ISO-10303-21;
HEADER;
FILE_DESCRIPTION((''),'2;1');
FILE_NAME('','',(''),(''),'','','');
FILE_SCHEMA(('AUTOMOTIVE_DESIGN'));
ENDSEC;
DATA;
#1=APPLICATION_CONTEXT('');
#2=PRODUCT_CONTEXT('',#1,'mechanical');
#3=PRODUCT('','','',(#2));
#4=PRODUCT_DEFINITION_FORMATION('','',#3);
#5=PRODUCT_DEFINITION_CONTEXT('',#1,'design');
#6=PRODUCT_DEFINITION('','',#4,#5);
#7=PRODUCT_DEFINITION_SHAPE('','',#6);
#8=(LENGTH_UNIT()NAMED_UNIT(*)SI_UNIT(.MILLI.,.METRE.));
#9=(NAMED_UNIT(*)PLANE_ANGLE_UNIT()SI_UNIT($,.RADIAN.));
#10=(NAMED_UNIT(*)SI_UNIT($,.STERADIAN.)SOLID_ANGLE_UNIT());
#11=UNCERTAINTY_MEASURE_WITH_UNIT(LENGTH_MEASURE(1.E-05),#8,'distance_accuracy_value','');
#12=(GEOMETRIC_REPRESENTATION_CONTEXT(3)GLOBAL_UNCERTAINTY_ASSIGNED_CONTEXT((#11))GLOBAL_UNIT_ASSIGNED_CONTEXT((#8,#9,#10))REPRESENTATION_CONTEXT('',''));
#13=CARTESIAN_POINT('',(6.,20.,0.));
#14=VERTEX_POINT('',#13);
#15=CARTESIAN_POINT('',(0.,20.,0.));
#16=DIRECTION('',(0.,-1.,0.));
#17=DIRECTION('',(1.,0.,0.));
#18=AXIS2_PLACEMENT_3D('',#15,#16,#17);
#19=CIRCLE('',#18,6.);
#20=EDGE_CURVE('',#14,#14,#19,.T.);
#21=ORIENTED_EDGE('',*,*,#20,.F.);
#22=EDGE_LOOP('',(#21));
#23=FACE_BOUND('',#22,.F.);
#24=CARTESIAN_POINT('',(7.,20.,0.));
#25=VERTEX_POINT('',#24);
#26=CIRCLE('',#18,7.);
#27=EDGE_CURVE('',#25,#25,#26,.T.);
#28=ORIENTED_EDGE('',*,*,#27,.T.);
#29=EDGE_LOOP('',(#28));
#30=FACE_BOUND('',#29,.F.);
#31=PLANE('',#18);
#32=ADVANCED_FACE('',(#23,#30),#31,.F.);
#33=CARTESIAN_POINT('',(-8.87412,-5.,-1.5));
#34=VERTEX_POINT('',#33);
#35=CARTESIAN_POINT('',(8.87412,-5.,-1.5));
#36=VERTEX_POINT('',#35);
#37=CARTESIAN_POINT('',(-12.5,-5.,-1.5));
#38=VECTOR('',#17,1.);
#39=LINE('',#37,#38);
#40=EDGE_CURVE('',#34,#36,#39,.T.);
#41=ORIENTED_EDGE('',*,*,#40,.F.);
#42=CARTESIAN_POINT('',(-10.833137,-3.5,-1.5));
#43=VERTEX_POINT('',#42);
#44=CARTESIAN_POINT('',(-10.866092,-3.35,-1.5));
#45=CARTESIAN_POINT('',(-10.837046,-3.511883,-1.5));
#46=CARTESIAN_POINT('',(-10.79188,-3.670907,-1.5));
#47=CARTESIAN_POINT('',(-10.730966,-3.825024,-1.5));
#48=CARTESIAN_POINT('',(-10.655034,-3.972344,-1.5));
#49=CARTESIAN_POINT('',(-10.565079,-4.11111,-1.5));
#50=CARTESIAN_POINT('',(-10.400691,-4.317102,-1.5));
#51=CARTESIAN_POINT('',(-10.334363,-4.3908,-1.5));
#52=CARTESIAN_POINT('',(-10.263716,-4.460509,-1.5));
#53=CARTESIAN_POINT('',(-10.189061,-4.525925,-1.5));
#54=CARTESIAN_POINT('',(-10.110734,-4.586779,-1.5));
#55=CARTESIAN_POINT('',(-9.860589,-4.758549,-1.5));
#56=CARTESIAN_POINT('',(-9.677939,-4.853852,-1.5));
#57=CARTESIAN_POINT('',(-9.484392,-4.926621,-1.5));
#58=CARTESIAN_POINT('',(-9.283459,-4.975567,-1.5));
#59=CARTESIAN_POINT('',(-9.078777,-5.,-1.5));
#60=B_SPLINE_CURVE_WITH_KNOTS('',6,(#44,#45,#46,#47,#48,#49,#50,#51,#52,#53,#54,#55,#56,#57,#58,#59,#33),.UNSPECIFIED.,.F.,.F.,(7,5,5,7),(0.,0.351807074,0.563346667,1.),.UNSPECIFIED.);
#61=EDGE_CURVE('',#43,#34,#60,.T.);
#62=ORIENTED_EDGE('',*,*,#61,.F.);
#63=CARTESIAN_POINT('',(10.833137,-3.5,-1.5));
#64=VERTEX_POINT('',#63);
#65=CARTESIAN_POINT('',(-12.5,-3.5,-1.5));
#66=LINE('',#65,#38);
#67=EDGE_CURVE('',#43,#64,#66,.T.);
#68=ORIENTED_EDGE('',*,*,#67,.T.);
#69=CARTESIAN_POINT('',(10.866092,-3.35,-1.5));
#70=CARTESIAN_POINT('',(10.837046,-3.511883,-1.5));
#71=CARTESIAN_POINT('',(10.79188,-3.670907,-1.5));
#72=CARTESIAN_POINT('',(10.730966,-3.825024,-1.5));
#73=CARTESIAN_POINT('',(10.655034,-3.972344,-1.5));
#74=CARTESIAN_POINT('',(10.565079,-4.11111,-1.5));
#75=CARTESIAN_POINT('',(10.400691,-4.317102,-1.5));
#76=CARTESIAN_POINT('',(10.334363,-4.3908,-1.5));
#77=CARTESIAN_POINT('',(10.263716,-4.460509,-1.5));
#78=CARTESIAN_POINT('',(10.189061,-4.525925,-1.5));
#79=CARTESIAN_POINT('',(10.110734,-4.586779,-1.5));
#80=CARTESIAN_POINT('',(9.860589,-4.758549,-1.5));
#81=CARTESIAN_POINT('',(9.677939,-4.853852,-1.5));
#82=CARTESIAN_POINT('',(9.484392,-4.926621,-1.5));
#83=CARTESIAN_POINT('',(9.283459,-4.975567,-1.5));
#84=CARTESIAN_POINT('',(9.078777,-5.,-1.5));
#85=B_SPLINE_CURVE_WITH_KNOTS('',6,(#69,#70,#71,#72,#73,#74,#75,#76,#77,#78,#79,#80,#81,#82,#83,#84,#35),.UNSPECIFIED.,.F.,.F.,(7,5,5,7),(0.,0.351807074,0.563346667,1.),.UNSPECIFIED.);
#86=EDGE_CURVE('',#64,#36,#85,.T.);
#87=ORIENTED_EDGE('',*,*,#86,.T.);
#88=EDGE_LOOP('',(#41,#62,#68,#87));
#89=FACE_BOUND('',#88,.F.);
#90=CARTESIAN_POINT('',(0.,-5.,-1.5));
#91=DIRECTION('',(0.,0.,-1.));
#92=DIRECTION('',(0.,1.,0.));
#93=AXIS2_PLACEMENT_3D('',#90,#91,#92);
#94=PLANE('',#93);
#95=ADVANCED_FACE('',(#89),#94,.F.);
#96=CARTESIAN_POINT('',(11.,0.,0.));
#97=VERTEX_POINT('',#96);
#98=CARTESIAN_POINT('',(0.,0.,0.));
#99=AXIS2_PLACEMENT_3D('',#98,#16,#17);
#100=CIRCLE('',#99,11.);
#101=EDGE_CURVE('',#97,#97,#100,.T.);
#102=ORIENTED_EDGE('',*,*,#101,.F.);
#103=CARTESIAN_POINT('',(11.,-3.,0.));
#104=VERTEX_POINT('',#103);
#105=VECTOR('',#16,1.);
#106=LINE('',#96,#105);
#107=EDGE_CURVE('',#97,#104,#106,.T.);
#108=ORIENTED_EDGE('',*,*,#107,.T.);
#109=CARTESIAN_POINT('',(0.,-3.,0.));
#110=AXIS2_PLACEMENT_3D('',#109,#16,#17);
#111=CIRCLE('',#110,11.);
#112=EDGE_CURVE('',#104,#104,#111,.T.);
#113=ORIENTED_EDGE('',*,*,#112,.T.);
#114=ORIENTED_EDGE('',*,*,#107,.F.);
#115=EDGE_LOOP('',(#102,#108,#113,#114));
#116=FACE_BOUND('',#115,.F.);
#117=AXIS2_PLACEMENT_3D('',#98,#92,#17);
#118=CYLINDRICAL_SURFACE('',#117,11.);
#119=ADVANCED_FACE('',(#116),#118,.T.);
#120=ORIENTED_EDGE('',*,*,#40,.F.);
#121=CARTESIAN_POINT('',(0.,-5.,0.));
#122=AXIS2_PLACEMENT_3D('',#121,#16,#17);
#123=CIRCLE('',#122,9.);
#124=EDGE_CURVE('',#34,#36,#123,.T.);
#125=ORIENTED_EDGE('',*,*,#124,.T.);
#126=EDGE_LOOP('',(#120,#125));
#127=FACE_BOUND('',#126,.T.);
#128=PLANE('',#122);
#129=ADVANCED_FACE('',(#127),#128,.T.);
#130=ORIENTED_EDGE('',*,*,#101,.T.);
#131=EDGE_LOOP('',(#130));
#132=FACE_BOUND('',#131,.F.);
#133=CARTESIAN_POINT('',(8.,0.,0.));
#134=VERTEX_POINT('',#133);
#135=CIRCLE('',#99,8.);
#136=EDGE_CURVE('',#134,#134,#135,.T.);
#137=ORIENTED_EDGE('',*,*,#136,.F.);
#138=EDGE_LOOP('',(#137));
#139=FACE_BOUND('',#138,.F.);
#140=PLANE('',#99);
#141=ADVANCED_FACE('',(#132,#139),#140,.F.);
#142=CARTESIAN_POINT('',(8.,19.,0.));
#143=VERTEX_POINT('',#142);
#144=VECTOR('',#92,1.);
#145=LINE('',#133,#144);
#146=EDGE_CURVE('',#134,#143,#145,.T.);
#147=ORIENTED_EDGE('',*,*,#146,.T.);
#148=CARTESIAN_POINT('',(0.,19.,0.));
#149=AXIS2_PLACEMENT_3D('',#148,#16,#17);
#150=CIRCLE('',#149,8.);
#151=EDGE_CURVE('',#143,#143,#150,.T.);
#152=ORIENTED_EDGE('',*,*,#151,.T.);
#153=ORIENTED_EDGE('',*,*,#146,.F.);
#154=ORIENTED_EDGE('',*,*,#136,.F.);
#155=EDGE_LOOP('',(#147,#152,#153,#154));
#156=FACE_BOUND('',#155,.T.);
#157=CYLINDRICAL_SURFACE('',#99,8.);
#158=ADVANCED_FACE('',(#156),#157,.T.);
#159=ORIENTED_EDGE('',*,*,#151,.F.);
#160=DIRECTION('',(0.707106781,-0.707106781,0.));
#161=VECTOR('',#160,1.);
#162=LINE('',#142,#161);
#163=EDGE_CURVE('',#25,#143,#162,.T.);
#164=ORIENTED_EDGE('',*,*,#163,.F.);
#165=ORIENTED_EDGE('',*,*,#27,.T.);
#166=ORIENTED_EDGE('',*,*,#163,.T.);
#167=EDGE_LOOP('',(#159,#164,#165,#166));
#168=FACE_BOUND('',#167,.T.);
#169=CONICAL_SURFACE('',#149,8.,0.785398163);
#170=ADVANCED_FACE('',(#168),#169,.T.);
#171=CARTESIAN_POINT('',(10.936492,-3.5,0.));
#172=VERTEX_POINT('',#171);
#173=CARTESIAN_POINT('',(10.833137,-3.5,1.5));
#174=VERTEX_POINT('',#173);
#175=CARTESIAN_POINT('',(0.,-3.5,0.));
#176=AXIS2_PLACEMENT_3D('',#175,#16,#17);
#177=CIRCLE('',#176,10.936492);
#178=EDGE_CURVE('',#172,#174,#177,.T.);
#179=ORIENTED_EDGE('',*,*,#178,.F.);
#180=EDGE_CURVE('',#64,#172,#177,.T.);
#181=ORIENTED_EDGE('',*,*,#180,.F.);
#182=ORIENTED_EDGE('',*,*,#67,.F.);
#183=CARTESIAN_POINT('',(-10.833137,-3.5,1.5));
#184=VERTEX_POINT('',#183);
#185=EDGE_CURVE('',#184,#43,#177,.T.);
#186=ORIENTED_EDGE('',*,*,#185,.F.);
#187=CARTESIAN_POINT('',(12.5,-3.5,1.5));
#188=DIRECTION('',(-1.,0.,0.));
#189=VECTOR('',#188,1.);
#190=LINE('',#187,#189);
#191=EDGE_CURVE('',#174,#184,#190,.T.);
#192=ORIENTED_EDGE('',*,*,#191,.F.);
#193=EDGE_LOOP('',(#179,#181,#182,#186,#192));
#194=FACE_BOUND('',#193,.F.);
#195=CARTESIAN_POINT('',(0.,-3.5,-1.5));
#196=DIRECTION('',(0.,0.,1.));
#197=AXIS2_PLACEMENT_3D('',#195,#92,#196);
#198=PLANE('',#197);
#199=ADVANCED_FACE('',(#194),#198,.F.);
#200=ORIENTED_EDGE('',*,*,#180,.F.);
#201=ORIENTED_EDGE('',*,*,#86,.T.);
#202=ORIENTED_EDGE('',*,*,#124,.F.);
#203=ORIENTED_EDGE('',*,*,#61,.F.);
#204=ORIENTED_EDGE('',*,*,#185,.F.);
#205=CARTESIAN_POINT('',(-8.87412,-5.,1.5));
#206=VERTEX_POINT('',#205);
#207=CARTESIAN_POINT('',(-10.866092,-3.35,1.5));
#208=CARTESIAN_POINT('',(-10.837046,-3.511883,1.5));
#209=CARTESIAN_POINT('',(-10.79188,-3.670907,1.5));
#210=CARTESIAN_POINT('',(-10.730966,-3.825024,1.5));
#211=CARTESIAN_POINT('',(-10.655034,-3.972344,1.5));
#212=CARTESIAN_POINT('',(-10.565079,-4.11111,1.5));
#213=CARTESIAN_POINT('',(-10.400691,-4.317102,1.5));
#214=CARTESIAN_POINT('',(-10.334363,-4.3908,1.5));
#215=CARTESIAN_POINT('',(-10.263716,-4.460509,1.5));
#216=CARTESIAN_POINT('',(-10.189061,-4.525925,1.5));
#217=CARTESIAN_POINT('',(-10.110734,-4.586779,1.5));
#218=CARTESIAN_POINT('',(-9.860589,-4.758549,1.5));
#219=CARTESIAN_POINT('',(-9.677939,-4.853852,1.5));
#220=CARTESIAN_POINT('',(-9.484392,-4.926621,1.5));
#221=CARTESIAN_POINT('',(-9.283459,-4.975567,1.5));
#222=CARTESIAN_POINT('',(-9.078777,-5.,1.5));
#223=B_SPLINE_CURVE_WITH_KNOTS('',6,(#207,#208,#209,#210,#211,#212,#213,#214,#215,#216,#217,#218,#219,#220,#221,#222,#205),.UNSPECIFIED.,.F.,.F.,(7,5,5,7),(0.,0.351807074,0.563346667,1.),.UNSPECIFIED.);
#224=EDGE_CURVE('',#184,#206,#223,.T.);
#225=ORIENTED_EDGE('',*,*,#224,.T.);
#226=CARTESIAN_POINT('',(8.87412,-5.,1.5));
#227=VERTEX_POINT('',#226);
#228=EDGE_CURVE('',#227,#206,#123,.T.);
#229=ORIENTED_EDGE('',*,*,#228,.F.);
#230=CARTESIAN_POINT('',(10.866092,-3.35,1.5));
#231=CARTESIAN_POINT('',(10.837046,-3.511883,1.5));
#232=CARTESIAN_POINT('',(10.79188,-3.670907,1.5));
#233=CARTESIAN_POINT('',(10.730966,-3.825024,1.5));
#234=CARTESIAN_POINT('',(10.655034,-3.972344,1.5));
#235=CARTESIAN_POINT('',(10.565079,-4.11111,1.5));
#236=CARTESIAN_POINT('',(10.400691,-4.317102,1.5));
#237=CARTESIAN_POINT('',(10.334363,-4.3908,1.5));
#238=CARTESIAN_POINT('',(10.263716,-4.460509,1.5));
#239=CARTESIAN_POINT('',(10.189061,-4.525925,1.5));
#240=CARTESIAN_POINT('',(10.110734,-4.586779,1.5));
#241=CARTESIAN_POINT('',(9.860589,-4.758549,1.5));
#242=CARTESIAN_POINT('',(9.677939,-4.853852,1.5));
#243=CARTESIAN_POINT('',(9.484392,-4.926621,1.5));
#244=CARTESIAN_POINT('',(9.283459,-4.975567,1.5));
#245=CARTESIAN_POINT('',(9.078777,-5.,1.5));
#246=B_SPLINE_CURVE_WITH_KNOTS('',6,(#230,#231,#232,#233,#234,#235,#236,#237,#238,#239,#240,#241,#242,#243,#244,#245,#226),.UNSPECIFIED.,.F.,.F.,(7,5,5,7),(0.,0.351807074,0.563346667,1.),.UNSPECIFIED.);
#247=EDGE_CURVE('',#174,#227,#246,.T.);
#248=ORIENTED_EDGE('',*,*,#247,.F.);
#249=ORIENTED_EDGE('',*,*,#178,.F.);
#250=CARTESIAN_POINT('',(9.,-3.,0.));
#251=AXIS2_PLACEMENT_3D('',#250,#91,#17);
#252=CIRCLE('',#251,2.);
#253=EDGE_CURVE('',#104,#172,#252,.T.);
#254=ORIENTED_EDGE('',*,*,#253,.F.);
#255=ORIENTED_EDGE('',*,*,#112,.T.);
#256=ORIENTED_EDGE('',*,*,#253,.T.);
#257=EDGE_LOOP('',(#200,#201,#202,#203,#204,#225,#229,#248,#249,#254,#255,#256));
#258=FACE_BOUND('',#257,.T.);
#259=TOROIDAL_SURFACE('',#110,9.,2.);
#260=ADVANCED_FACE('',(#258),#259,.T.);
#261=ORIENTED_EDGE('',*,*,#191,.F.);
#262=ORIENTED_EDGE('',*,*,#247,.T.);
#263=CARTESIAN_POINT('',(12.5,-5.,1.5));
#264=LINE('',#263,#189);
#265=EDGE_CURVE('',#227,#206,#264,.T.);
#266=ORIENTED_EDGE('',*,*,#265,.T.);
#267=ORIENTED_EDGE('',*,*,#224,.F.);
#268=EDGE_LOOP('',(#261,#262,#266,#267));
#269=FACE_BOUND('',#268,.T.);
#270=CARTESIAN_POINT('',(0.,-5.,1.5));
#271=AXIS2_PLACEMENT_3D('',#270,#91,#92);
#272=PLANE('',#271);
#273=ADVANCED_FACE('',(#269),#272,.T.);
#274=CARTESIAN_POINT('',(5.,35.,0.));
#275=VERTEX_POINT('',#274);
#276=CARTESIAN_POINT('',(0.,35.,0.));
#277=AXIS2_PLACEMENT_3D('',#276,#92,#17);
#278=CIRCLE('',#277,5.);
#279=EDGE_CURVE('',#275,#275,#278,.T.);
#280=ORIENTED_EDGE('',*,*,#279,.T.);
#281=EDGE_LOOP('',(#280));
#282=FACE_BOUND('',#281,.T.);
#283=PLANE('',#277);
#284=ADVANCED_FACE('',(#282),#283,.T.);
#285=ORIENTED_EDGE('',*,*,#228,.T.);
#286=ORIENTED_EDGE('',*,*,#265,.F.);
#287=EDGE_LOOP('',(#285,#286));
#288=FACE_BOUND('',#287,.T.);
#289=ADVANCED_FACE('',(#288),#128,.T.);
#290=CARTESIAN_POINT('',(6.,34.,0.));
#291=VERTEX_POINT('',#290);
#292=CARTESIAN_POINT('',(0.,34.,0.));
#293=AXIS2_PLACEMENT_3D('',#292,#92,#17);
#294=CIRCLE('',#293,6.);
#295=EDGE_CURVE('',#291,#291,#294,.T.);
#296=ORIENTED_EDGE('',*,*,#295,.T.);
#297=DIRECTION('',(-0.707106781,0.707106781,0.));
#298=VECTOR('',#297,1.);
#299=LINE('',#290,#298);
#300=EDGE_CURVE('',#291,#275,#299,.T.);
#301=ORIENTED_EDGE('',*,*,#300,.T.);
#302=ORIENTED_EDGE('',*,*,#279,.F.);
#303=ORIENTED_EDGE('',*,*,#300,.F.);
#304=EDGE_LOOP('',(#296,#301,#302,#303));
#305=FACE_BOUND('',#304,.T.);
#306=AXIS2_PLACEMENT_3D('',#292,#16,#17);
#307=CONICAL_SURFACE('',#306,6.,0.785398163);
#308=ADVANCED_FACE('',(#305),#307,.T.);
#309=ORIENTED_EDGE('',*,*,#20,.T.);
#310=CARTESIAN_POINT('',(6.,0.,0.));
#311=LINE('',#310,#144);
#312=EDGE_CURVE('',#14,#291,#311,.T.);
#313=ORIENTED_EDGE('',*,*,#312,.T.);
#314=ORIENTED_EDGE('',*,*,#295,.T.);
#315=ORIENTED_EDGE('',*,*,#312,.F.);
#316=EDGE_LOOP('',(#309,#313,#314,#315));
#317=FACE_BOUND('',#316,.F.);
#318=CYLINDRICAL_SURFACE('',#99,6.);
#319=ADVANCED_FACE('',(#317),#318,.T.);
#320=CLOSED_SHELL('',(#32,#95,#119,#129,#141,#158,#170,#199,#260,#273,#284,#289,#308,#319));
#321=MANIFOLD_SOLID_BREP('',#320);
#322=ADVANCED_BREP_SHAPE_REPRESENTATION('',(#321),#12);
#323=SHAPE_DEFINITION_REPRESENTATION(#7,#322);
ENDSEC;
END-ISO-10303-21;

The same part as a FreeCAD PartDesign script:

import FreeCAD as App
import Part
import Sketcher
from FreeCAD import Vector


def edges_at(feature, points):
    """Names of the edges that pass closest to the given points."""
    edges = feature.Shape.Edges
    near = lambda p: min(range(len(edges)), key=lambda i: edges[i].distToShape(Part.Vertex(*p))[0])
    return sorted({f"Edge{near(p) + 1}" for p in points})


def add_polygon(sketch, points):
    """Adds a closed chain of lines whose ends are joined by coincident constraints."""
    first, n = sketch.GeometryCount, len(points)
    for a, b in zip(points, points[1:] + points[:1]):
        sketch.addGeometry(Part.LineSegment(App.Vector(*a, 0), App.Vector(*b, 0)), False)
    for i in range(n):
        sketch.addConstraint(Sketcher.Constraint("Coincident", first + i, 2, first + (i + 1) % n, 1))

doc = App.newDocument("Part")
params = doc.addObject("Spreadsheet::Sheet", "Params")
for row, (alias, value) in enumerate([
    ("sketch1_diameter", "22 mm"),
    ("pad1_length", "5 mm"),
    ("fillet_radius", "2 mm"),
    ("sketch2_diameter", "16 mm"),
    ("sketch2_diameter2", "12 mm"),
    ("pad2_length", "20 mm"),
    ("sketch3_diameter", "12 mm"),
    ("pad3_length", "35 mm"),
    ("chamfer_size", "1 mm"),
    ("chamfer_size2", "1 mm"),
    ("sketch4_height", "3 mm"),
    ("sketch4_width", "1.5 mm"),
    ("pocket1_length", "25 mm"),
], start=1):
    params.set(f"A{row}", alias)
    params.set(f"B{row}", "=" + value)
    params.setAlias(f"B{row}", alias)

body = doc.addObject("PartDesign::Body", "Body")

# Sketch on XZ plane
sketch1 = body.newObject("Sketcher::SketchObject", "Sketch")
sketch1.AttachmentSupport = (doc.getObject("XZ_Plane"), [""])
sketch1.MapMode = "FlatFace"
sketch1.addGeometry(Part.Circle(Vector(0, 0, 0), Vector(0, 0, 1), 11), False)
sketch1.addConstraint([
    Sketcher.Constraint("Coincident", 0, 3, -1, 1),
    Sketcher.Constraint("Diameter", 0, 22.0),
])
sketch1.setExpression("Constraints[1]", "Params.sketch1_diameter")
pad1 = body.newObject("PartDesign::Pad", "Pad")
pad1.Profile = sketch1
pad1.setExpression("Length", "Params.pad1_length")
doc.recompute()

fillet = body.newObject("PartDesign::Fillet", "Fillet")
fillet.Base = (pad1, edges_at(pad1, [(-11, -5, 0)]))
fillet.setExpression("Radius", "Params.fillet_radius")

# Sketch on XZ plane
sketch2 = body.newObject("Sketcher::SketchObject", "Sketch001")
sketch2.AttachmentSupport = (doc.getObject("XZ_Plane"), [""])
sketch2.MapMode = "FlatFace"
sketch2.addGeometry([
    Part.Circle(Vector(0, 0, 0), Vector(0, 0, 1), 8),
    Part.Circle(Vector(0, 0, 0), Vector(0, 0, 1), 6),
], False)
sketch2.addConstraint([
    Sketcher.Constraint("Coincident", 0, 3, -1, 1),
    Sketcher.Constraint("Coincident", 1, 3, -1, 1),
    Sketcher.Constraint("Diameter", 0, 16.0),
    Sketcher.Constraint("Diameter", 1, 12.0),
])
sketch2.setExpression("Constraints[2]", "Params.sketch2_diameter")
sketch2.setExpression("Constraints[3]", "Params.sketch2_diameter2")
pad2 = body.newObject("PartDesign::Pad", "Pad001")
pad2.Profile = sketch2
pad2.setExpression("Length", "Params.pad2_length")
pad2.Reversed = True

# Sketch on XZ plane
sketch3 = body.newObject("Sketcher::SketchObject", "Sketch002")
sketch3.AttachmentSupport = (doc.getObject("XZ_Plane"), [""])
sketch3.MapMode = "FlatFace"
sketch3.addGeometry(Part.Circle(Vector(0, 0, 0), Vector(0, 0, 1), 6), False)
sketch3.addConstraint([
    Sketcher.Constraint("Coincident", 0, 3, -1, 1),
    Sketcher.Constraint("Diameter", 0, 12.0),
])
sketch3.setExpression("Constraints[1]", "Params.sketch3_diameter")
pad3 = body.newObject("PartDesign::Pad", "Pad002")
pad3.Profile = sketch3
pad3.setExpression("Length", "Params.pad3_length")
pad3.Reversed = True
doc.recompute()

chamfer = body.newObject("PartDesign::Chamfer", "Chamfer")
chamfer.Base = (pad3, edges_at(pad3, [(-6, 35, 0), (-8, 20, 0)]))
chamfer.ChamferType = "Two distances"
chamfer.setExpression("Size", "Params.chamfer_size")
chamfer.setExpression("Size2", "Params.chamfer_size2")

# Sketch on YZ plane
sketch4 = body.newObject("Sketcher::SketchObject", "Sketch003")
sketch4.AttachmentSupport = (doc.getObject("YZ_Plane"), [""])
sketch4.MapMode = "FlatFace"
add_polygon(sketch4, [(-5, 1.5), (-5, -1.5), (-3.5, -1.5), (-3.5, 1.5)])  # lines 0-3
sketch4.addConstraint([
    Sketcher.Constraint("Vertical", 0),
    Sketcher.Constraint("Horizontal", 1),
    Sketcher.Constraint("Vertical", 2),
    Sketcher.Constraint("Horizontal", 3),
    Sketcher.Constraint("DistanceY", 0, 2, 0, 1, 3.0),
    Sketcher.Constraint("DistanceX", 1, 1, 1, 2, 1.5),
    Sketcher.Constraint("DistanceX", 0, 2, -1, 1, 5.0),
    Sketcher.Constraint("DistanceY", 0, 2, -1, 1, 1.5),
])
sketch4.setExpression("Constraints[8]", "Params.sketch4_height")
sketch4.setExpression("Constraints[9]", "Params.sketch4_width")
pocket1 = body.newObject("PartDesign::Pocket", "Pocket")
pocket1.Profile = sketch4
pocket1.setExpression("Length", "Params.pocket1_length")
pocket1.Midplane = True

doc.recompute()
